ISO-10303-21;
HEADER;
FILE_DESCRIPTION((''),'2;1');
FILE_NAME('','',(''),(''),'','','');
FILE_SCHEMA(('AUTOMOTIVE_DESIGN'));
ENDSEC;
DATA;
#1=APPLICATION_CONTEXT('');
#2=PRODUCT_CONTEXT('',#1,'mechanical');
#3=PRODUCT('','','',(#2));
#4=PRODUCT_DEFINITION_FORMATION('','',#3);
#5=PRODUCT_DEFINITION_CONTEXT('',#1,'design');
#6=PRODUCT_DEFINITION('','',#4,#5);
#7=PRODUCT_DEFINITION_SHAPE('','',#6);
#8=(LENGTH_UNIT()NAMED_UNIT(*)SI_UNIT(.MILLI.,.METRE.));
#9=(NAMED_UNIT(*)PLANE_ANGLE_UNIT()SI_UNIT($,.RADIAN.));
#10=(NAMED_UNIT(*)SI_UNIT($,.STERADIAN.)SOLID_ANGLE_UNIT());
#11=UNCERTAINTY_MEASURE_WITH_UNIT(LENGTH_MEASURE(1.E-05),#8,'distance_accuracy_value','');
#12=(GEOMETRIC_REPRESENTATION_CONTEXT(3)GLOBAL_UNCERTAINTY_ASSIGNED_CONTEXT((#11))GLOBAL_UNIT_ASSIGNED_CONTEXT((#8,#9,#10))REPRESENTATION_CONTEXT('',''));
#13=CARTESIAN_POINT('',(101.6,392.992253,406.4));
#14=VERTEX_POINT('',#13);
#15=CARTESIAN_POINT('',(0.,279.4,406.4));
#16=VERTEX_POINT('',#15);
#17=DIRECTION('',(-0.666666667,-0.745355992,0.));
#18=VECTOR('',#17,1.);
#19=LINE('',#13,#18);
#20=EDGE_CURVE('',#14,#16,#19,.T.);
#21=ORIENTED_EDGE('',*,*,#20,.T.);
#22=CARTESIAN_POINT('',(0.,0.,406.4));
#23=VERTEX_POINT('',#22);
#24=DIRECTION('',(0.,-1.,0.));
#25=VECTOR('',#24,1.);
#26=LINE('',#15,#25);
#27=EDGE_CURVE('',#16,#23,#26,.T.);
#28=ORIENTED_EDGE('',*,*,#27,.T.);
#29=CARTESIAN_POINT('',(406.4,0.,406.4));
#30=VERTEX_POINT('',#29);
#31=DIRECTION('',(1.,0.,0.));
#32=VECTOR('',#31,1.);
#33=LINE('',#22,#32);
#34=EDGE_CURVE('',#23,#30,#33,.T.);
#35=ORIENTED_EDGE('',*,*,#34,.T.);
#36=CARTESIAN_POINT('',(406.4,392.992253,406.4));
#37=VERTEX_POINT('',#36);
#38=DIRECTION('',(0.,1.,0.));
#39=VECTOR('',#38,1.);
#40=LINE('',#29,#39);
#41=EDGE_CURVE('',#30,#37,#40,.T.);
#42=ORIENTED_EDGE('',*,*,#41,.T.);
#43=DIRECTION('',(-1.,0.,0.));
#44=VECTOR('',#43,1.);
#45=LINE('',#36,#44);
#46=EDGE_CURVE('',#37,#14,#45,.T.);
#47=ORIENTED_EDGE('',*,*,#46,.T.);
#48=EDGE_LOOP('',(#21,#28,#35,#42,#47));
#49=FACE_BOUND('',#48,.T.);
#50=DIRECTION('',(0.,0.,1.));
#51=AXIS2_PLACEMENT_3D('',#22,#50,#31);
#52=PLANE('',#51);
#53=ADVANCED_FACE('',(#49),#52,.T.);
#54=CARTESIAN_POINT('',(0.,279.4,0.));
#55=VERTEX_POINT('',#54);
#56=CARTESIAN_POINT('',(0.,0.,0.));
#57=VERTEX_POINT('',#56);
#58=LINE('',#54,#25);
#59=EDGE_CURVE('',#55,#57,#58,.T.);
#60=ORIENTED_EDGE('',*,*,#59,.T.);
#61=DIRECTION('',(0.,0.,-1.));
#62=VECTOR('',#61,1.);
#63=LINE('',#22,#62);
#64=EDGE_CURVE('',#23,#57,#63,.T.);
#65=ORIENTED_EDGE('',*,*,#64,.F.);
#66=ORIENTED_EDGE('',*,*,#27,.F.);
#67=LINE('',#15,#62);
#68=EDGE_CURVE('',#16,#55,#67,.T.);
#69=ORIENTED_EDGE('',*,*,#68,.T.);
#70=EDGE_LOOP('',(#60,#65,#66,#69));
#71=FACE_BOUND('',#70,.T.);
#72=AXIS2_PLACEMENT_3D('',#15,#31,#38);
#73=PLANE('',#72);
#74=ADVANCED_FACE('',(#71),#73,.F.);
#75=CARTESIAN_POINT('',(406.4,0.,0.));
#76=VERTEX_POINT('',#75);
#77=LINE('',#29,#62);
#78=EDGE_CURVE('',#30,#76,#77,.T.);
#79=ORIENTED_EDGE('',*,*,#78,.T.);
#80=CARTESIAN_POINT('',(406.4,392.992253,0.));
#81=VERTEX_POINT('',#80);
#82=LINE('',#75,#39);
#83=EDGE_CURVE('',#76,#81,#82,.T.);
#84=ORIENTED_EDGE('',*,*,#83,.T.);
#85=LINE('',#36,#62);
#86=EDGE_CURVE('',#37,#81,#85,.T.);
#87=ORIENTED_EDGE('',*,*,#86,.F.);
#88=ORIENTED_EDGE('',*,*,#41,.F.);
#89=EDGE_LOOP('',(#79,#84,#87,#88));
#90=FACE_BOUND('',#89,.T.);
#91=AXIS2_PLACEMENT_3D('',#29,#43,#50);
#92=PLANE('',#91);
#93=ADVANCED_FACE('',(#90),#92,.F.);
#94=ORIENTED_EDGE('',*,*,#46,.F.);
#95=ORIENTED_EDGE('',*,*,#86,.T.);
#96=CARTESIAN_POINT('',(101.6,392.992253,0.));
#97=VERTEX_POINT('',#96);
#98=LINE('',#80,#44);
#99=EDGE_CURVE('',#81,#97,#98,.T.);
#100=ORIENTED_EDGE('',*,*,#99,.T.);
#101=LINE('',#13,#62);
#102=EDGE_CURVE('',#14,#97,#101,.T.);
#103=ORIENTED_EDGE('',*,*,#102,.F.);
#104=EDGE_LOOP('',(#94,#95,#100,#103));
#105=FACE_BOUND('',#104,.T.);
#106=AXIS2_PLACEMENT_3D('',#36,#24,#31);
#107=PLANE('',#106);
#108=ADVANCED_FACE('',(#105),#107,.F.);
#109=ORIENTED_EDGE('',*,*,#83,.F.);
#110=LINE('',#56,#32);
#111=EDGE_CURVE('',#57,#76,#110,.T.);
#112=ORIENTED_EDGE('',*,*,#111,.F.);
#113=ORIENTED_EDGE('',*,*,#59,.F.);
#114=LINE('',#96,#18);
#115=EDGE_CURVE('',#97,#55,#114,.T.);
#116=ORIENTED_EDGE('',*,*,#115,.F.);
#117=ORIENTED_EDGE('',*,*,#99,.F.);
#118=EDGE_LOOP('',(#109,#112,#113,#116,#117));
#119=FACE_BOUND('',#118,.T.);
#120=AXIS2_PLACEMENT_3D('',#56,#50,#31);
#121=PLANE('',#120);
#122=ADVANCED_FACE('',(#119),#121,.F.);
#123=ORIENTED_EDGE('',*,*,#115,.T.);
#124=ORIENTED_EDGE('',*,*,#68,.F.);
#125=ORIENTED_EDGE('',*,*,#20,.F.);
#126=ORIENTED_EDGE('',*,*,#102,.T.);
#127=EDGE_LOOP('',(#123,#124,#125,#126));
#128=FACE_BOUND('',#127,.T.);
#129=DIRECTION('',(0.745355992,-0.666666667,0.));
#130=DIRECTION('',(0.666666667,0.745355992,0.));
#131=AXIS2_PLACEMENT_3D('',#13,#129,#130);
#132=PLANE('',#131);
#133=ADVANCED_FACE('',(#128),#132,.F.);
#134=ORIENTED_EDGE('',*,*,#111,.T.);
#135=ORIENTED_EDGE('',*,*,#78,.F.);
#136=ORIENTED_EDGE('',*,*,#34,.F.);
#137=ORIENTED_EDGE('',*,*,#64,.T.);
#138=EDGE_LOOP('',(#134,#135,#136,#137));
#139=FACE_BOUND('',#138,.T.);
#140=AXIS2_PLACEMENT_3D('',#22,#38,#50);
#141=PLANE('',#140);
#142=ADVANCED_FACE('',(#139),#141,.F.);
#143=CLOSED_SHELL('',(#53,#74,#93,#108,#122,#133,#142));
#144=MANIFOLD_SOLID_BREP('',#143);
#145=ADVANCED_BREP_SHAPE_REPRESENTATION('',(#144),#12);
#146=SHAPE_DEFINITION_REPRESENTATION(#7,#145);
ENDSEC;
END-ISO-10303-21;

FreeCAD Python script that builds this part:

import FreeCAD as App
import Part
import Sketcher
Q = App.Units.Quantity

doc = App.newDocument("Part")
params = doc.addObject("Spreadsheet::Sheet", "Params")
for row, (alias, value) in enumerate([
    ("sketch1_width", "16 in"),
    ("sketch1_width2", "12 in"),
    ("sketch1_height", "11 in"),
    ("sketch1_length", "6 in"),
    ("pad1_length", "16 in"),
], start=1):
    params.set(f"A{row}", alias)
    params.set(f"B{row}", "=" + value)
    params.setAlias(f"B{row}", alias)

body = doc.addObject("PartDesign::Body", "Body")

# Sketch on XY plane
sketch1 = doc.addObject("Sketcher::SketchObject", "Sketch")
body.addObject(sketch1)
sketch1.AttachmentSupport = (doc.XY_Plane, [""])
sketch1.MapMode = "FlatFace"
sketch1.addGeometry(Part.LineSegment(App.Vector(0, 279.4, 0), App.Vector(0, 0, 0)), False)
sketch1.addGeometry(Part.LineSegment(App.Vector(0, 0, 0), App.Vector(406.4, 0, 0)), False)
sketch1.addGeometry(Part.LineSegment(App.Vector(406.4, 0, 0), App.Vector(406.4, 392.992253, 0)), False)
sketch1.addGeometry(Part.LineSegment(App.Vector(406.4, 392.992253, 0), App.Vector(101.6, 392.992253, 0)), False)
sketch1.addGeometry(Part.LineSegment(App.Vector(101.6, 392.992253, 0), App.Vector(0, 279.4, 0)), False)
sketch1.addConstraint(Sketcher.Constraint("Coincident", 0, 2, 1, 1))
sketch1.addConstraint(Sketcher.Constraint("Coincident", 1, 2, 2, 1))
sketch1.addConstraint(Sketcher.Constraint("Coincident", 2, 2, 3, 1))
sketch1.addConstraint(Sketcher.Constraint("Coincident", 3, 2, 4, 1))
sketch1.addConstraint(Sketcher.Constraint("Coincident", 4, 2, 0, 1))
sketch1.addConstraint(Sketcher.Constraint("Vertical", 0))
sketch1.addConstraint(Sketcher.Constraint("Horizontal", 1))
sketch1.addConstraint(Sketcher.Constraint("Vertical", 2))
sketch1.addConstraint(Sketcher.Constraint("Horizontal", 3))
sketch1.addConstraint(Sketcher.Constraint("Coincident", 0, 2, -1, 1))
sketch1.addConstraint(Sketcher.Constraint("DistanceX", 1, 1, 1, 2, Q("16 in")))
sketch1.addConstraint(Sketcher.Constraint("DistanceX", 3, 2, 3, 1, Q("12 in")))
sketch1.addConstraint(Sketcher.Constraint("DistanceY", 0, 2, 0, 1, Q("11 in")))
sketch1.addConstraint(Sketcher.Constraint("Distance", 4, Q("6 in")))
sketch1.setExpression("Constraints[10]", "Params.sketch1_width")
sketch1.setExpression("Constraints[11]", "Params.sketch1_width2")
sketch1.setExpression("Constraints[12]", "Params.sketch1_height")
sketch1.setExpression("Constraints[13]", "Params.sketch1_length")
pad1 = doc.addObject("PartDesign::Pad", "Pad")
body.addObject(pad1)
pad1.Profile = sketch1
pad1.setExpression("Length", "Params.pad1_length")

doc.recompute()
